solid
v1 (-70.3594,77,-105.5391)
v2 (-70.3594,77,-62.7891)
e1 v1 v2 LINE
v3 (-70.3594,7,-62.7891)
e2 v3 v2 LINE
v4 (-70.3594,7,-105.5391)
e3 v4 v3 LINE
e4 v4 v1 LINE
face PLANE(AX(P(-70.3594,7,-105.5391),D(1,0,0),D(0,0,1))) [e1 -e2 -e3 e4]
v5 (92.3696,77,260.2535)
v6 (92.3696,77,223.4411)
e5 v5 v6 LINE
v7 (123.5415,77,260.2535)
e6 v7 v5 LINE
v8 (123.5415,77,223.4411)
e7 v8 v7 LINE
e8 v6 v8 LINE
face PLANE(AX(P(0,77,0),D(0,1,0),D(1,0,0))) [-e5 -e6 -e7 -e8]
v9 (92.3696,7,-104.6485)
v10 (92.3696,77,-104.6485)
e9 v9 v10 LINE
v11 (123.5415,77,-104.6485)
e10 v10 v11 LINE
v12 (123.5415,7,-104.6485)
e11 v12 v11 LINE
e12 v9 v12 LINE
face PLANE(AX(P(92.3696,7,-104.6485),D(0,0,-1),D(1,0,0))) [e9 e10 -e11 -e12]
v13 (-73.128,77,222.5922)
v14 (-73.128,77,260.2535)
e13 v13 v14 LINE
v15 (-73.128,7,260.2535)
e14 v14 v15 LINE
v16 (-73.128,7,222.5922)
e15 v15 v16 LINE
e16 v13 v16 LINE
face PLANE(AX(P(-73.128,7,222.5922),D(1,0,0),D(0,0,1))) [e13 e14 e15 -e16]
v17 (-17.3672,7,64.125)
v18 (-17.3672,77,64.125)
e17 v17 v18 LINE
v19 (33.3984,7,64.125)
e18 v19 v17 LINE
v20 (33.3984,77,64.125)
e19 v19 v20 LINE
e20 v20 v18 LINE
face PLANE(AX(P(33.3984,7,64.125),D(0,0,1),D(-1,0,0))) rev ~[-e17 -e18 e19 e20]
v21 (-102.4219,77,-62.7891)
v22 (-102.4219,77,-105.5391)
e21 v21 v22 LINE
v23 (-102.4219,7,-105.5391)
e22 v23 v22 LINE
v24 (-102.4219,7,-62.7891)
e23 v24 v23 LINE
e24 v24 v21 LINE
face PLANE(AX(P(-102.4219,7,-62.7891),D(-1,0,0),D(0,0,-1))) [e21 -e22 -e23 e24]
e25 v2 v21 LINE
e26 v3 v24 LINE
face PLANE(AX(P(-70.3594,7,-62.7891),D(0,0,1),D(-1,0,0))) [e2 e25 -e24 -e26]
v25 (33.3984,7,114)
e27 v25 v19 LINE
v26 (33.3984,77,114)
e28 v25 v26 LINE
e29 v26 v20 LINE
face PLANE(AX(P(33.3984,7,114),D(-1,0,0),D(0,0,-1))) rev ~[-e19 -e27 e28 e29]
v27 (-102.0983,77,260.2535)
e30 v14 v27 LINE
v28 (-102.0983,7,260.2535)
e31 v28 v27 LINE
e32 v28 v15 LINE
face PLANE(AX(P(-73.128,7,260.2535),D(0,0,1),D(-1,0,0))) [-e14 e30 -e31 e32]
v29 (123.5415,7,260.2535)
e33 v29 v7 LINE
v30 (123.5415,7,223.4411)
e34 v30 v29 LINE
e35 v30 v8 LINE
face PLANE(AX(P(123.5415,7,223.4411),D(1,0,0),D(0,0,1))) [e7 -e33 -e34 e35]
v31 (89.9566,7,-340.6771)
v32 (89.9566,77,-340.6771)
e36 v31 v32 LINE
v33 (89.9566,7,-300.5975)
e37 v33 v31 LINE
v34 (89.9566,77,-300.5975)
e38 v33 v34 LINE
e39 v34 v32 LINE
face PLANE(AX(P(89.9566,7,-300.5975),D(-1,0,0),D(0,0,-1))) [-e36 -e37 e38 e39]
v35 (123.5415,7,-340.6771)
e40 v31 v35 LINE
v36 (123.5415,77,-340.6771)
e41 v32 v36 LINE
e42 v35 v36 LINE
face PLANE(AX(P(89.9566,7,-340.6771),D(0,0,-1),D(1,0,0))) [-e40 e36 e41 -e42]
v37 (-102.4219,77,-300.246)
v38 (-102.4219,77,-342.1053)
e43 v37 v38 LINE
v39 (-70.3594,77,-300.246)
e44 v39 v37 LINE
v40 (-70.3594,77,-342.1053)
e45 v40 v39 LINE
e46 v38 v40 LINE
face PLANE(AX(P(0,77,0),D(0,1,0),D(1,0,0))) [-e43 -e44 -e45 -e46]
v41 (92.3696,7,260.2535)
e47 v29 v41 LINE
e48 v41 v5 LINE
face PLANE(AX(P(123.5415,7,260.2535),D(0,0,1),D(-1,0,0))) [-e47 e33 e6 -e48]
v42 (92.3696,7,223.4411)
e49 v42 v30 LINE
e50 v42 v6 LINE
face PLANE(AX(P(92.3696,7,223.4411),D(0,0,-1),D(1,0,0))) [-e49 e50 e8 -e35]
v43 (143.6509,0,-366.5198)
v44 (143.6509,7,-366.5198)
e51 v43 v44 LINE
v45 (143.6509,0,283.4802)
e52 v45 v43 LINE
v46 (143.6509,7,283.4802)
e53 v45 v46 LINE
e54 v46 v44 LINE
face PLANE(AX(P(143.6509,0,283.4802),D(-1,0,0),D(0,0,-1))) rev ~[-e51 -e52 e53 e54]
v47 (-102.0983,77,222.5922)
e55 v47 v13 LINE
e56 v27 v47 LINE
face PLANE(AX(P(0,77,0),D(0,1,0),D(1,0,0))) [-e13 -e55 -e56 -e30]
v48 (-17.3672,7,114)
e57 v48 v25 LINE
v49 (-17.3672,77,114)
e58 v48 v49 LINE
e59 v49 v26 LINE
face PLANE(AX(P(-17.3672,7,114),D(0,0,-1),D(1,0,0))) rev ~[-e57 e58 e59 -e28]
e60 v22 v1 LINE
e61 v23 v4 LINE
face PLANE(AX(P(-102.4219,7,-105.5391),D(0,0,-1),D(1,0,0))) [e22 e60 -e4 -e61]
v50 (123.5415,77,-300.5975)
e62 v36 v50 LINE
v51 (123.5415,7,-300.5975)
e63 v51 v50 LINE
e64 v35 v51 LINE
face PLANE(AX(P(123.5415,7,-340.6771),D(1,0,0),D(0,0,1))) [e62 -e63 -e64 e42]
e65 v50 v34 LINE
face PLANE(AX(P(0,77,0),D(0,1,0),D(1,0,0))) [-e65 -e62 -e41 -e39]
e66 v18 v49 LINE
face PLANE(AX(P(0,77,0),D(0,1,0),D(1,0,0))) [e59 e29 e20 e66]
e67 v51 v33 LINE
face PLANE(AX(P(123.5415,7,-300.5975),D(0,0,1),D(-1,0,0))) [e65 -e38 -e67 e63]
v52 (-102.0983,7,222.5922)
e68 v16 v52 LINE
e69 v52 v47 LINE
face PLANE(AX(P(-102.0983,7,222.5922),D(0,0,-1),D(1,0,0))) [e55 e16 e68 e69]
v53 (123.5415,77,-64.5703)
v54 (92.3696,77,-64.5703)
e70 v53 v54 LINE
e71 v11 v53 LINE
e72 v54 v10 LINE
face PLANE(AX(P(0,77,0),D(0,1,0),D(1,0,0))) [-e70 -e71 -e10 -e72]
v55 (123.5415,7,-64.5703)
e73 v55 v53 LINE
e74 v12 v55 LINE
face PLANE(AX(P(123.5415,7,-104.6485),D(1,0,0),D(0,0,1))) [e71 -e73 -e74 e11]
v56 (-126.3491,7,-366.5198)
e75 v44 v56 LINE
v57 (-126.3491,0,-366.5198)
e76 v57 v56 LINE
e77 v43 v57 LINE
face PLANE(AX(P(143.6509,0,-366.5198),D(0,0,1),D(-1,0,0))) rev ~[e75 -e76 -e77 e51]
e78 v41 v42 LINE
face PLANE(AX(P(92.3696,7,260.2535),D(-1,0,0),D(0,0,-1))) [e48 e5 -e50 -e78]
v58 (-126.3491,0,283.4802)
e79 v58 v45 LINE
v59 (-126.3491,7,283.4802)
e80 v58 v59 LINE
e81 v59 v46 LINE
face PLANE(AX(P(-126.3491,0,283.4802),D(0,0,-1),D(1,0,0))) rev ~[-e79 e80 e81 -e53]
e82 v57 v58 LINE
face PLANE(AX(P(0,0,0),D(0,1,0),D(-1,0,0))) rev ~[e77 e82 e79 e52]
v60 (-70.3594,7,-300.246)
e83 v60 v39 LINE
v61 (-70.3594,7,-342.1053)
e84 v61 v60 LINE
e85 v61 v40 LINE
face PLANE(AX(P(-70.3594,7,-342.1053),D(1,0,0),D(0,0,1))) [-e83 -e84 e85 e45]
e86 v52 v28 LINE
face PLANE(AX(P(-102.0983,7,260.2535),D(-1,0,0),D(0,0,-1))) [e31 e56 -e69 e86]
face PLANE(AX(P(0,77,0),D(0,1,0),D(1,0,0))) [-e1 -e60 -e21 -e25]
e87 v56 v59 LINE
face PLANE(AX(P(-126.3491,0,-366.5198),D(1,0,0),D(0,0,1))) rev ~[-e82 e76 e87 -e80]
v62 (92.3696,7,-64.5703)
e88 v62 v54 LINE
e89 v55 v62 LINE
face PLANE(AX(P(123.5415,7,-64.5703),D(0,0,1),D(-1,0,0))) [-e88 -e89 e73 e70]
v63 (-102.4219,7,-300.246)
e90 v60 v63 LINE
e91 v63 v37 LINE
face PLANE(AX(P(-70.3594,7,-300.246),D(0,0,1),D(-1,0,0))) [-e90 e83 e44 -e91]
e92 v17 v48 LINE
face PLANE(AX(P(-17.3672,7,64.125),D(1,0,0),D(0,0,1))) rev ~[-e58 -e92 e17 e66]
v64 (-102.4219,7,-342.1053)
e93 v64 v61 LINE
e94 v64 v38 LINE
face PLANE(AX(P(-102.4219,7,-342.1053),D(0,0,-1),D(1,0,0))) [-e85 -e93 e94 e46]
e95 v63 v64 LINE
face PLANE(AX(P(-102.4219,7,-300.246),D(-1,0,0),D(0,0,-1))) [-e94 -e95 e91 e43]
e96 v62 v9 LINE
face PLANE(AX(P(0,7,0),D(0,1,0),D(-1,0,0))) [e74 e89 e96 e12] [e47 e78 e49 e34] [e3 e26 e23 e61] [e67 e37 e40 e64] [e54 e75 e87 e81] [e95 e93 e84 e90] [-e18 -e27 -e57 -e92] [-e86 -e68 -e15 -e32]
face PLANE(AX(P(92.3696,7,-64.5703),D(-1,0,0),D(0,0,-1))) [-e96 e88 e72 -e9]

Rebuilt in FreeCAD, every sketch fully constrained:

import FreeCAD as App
import Part
import Sketcher

doc = App.newDocument("Part")
body = doc.addObject("PartDesign::Body", "Body")

sketch1 = body.newObject("Sketcher::SketchObject", "Sketch")
sketch1.AttachmentSupport = (doc.getObject("XZ_Plane"), [""])
sketch1.MapMode = "FlatFace"
sketch1.addGeometry([
    Part.LineSegment(App.Vector(-126, -367, 0), App.Vector(-126, 283, 0)),
    Part.LineSegment(App.Vector(-126, 283, 0), App.Vector(144, 283, 0)),
    Part.LineSegment(App.Vector(144, 283, 0), App.Vector(144, -367, 0)),
    Part.LineSegment(App.Vector(144, -367, 0), App.Vector(-126, -367, 0)),
], False)
sketch1.addConstraint([
    Sketcher.Constraint("Coincident", 0, 2, 1, 1),
    Sketcher.Constraint("Coincident", 1, 2, 2, 1),
    Sketcher.Constraint("Coincident", 2, 2, 3, 1),
    Sketcher.Constraint("Coincident", 3, 2, 0, 1),
    Sketcher.Constraint("Vertical", 0),
    Sketcher.Constraint("Horizontal", 1),
    Sketcher.Constraint("Vertical", 2),
    Sketcher.Constraint("Horizontal", 3),
    Sketcher.Constraint("DistanceX", 1, 1, 1, 2, 270.0),
    Sketcher.Constraint("DistanceY", 0, 1, 0, 2, 650.0),
    Sketcher.Constraint("DistanceX", 0, 2, -1, 1, 126.349),
    Sketcher.Constraint("DistanceY", -1, 1, 0, 2, 283.4802),
])
pad1 = body.newObject("PartDesign::Pad", "Pad")
pad1.Profile = sketch1
pad1.Length = 7
pad1.Reversed = True

sketch2 = body.newObject("Sketcher::SketchObject", "Sketch001")
sketch2.AttachmentSupport = (doc.getObject("XZ_Plane"), [""])
sketch2.MapMode = "FlatFace"
sketch2.AttachmentOffset = App.Placement(App.Vector(0, 0, -7), App.Rotation())
sketch2.addGeometry([
    Part.LineSegment(App.Vector(-73, 223, 0), App.Vector(-102, 223, 0)),
    Part.LineSegment(App.Vector(-102, 223, 0), App.Vector(-102, 260, 0)),
    Part.LineSegment(App.Vector(-102, 260, 0), App.Vector(-73, 260, 0)),
    Part.LineSegment(App.Vector(-73, 260, 0), App.Vector(-73, 223, 0)),
], False)
sketch2.addConstraint([
    Sketcher.Constraint("Coincident", 0, 2, 1, 1),
    Sketcher.Constraint("Coincident", 1, 2, 2, 1),
    Sketcher.Constraint("Coincident", 2, 2, 3, 1),
    Sketcher.Constraint("Coincident", 3, 2, 0, 1),
    Sketcher.Constraint("Horizontal", 0),
    Sketcher.Constraint("Vertical", 1),
    Sketcher.Constraint("Horizontal", 2),
    Sketcher.Constraint("Vertical", 3),
    Sketcher.Constraint("DistanceX", 0, 2, 0, 1, 28.9703),
    Sketcher.Constraint("DistanceY", 1, 1, 1, 2, 37.6613),
    Sketcher.Constraint("DistanceX", 2, 2, -1, 1, 73.128),
    Sketcher.Constraint("DistanceY", -1, 1, 0, 2, 222.5922),
])
pad2 = body.newObject("PartDesign::Pad", "Pad001")
pad2.Profile = sketch2
pad2.Type = "TwoLengths"
pad2.Length = 70
pad2.Length2 = 5
pad2.Reversed = True

sketch3 = body.newObject("Sketcher::SketchObject", "Sketch002")
sketch3.AttachmentSupport = (doc.getObject("XZ_Plane"), [""])
sketch3.MapMode = "FlatFace"
sketch3.AttachmentOffset = App.Placement(App.Vector(0, 0, -7), App.Rotation())
sketch3.addGeometry([
    Part.LineSegment(App.Vector(92, 260, 0), App.Vector(124, 260, 0)),
    Part.LineSegment(App.Vector(124, 260, 0), App.Vector(124, 223, 0)),
    Part.LineSegment(App.Vector(124, 223, 0), App.Vector(92, 223, 0)),
    Part.LineSegment(App.Vector(92, 223, 0), App.Vector(92, 260, 0)),
], False)
sketch3.addConstraint([
    Sketcher.Constraint("Coincident", 0, 2, 1, 1),
    Sketcher.Constraint("Coincident", 1, 2, 2, 1),
    Sketcher.Constraint("Coincident", 2, 2, 3, 1),
    Sketcher.Constraint("Coincident", 3, 2, 0, 1),
    Sketcher.Constraint("Horizontal", 0),
    Sketcher.Constraint("Vertical", 1),
    Sketcher.Constraint("Horizontal", 2),
    Sketcher.Constraint("Vertical", 3),
    Sketcher.Constraint("DistanceX", 0, 1, 0, 2, 31.172),
    Sketcher.Constraint("DistanceY", 1, 2, 1, 1, 36.8124),
    Sketcher.Constraint("DistanceY", -1, 1, 1, 2, 223.441),
    Sketcher.Constraint("DistanceX", -1, 1, 0, 2, 123.5415),
])
pad3 = body.newObject("PartDesign::Pad", "Pad002")
pad3.Profile = sketch3
pad3.Length = 70
pad3.Reversed = True

sketch4 = body.newObject("Sketcher::SketchObject", "Sketch003")
sketch4.AttachmentSupport = (doc.getObject("XZ_Plane"), [""])
sketch4.MapMode = "FlatFace"
sketch4.AttachmentOffset = App.Placement(App.Vector(0, 0, -7), App.Rotation())
sketch4.addGeometry([
    Part.LineSegment(App.Vector(92, -65, 0), App.Vector(124, -65, 0)),
    Part.LineSegment(App.Vector(124, -65, 0), App.Vector(124, -105, 0)),
    Part.LineSegment(App.Vector(124, -105, 0), App.Vector(92, -105, 0)),
    Part.LineSegment(App.Vector(92, -105, 0), App.Vector(92, -65, 0)),
], False)
sketch4.addConstraint([
    Sketcher.Constraint("Coincident", 0, 2, 1, 1),
    Sketcher.Constraint("Coincident", 1, 2, 2, 1),
    Sketcher.Constraint("Coincident", 2, 2, 3, 1),
    Sketcher.Constraint("Coincident", 3, 2, 0, 1),
    Sketcher.Constraint("Horizontal", 0),
    Sketcher.Constraint("Vertical", 1),
    Sketcher.Constraint("Horizontal", 2),
    Sketcher.Constraint("Vertical", 3),
    Sketcher.Constraint("DistanceX", 0, 1, 0, 2, 31.172),
    Sketcher.Constraint("DistanceY", 1, 2, 1, 1, 40.0782),
    Sketcher.Constraint("DistanceX", -1, 1, 0, 2, 123.5415),
    Sketcher.Constraint("DistanceY", 0, 2, -1, 1, 64.5703),
])
pad4 = body.newObject("PartDesign::Pad", "Pad003")
pad4.Profile = sketch4
pad4.Length = 70
pad4.Reversed = True

sketch5 = body.newObject("Sketcher::SketchObject", "Sketch004")
sketch5.AttachmentSupport = (doc.getObject("XZ_Plane"), [""])
sketch5.MapMode = "FlatFace"
sketch5.AttachmentOffset = App.Placement(App.Vector(0, 0, -7), App.Rotation())
sketch5.addGeometry([
    Part.LineSegment(App.Vector(-102, -63, 0), App.Vector(-70, -63, 0)),
    Part.LineSegment(App.Vector(-70, -63, 0), App.Vector(-70, -106, 0)),
    Part.LineSegment(App.Vector(-70, -106, 0), App.Vector(-102, -106, 0)),
    Part.LineSegment(App.Vector(-102, -106, 0), App.Vector(-102, -63, 0)),
], False)
sketch5.addConstraint([
    Sketcher.Constraint("Coincident", 0, 2, 1, 1),
    Sketcher.Constraint("Coincident", 1, 2, 2, 1),
    Sketcher.Constraint("Coincident", 2, 2, 3, 1),
    Sketcher.Constraint("Coincident", 3, 2, 0, 1),
    Sketcher.Constraint("Horizontal", 0),
    Sketcher.Constraint("Vertical", 1),
    Sketcher.Constraint("Horizontal", 2),
    Sketcher.Constraint("Vertical", 3),
    Sketcher.Constraint("DistanceY", 1, 2, 1, 1, 42.75),
    Sketcher.Constraint("DistanceX", 0, 1, 0, 2, 32.0625),
    Sketcher.Constraint("DistanceY", 0, 2, -1, 1, 62.789),
    Sketcher.Constraint("DistanceX", 2, 2, -1, 1, 102.422),
])
pad5 = body.newObject("PartDesign::Pad", "Pad004")
pad5.Profile = sketch5
pad5.Length = 70
pad5.Reversed = True

sketch6 = body.newObject("Sketcher::SketchObject", "Sketch005")
sketch6.AttachmentSupport = (doc.getObject("XZ_Plane"), [""])
sketch6.MapMode = "FlatFace"
sketch6.AttachmentOffset = App.Placement(App.Vector(0, 0, -7), App.Rotation())
sketch6.addGeometry([
    Part.LineSegment(App.Vector(-70, -342, 0), App.Vector(-102, -342, 0)),
    Part.LineSegment(App.Vector(-102, -342, 0), App.Vector(-102, -300, 0)),
    Part.LineSegment(App.Vector(-102, -300, 0), App.Vector(-70, -300, 0)),
    Part.LineSegment(App.Vector(-70, -300, 0), App.Vector(-70, -342, 0)),
], False)
sketch6.addConstraint([
    Sketcher.Constraint("Coincident", 0, 2, 1, 1),
    Sketcher.Constraint("Coincident", 1, 2, 2, 1),
    Sketcher.Constraint("Coincident", 2, 2, 3, 1),
    Sketcher.Constraint("Coincident", 3, 2, 0, 1),
    Sketcher.Constraint("Horizontal", 0),
    Sketcher.Constraint("Vertical", 1),
    Sketcher.Constraint("Horizontal", 2),
    Sketcher.Constraint("Vertical", 3),
    Sketcher.Constraint("DistanceX", 0, 2, 0, 1, 32.0625),
    Sketcher.Constraint("DistanceY", 1, 1, 1, 2, 41.8593),
    Sketcher.Constraint("DistanceX", 0, 2, -1, 1, 102.422),
    Sketcher.Constraint("DistanceY", 1, 2, -1, 1, 300.246),
])
pad6 = body.newObject("PartDesign::Pad", "Pad005")
pad6.Profile = sketch6
pad6.Length = 70
pad6.Reversed = True

sketch7 = body.newObject("Sketcher::SketchObject", "Sketch006")
sketch7.AttachmentSupport = (doc.getObject("XZ_Plane"), [""])
sketch7.MapMode = "FlatFace"
sketch7.AttachmentOffset = App.Placement(App.Vector(0, 0, -7), App.Rotation())
sketch7.addGeometry([
    Part.LineSegment(App.Vector(90, -301, 0), App.Vector(124, -301, 0)),
    Part.LineSegment(App.Vector(124, -301, 0), App.Vector(124, -341, 0)),
    Part.LineSegment(App.Vector(124, -341, 0), App.Vector(90, -341, 0)),
    Part.LineSegment(App.Vector(90, -341, 0), App.Vector(90, -301, 0)),
], False)
sketch7.addConstraint([
    Sketcher.Constraint("Coincident", 0, 2, 1, 1),
    Sketcher.Constraint("Coincident", 1, 2, 2, 1),
    Sketcher.Constraint("Coincident", 2, 2, 3, 1),
    Sketcher.Constraint("Coincident", 3, 2, 0, 1),
    Sketcher.Constraint("Horizontal", 0),
    Sketcher.Constraint("Vertical", 1),
    Sketcher.Constraint("Horizontal", 2),
    Sketcher.Constraint("Vertical", 3),
    Sketcher.Constraint("DistanceX", 0, 1, 0, 2, 33.585),
    Sketcher.Constraint("DistanceY", 1, 2, 1, 1, 40.0796),
    Sketcher.Constraint("DistanceY", 1, 2, -1, 1, 340.677),
    Sketcher.Constraint("DistanceX", -1, 1, 0, 2, 123.5415),
])
pad7 = body.newObject("PartDesign::Pad", "Pad006")
pad7.Profile = sketch7
pad7.Length = 70
pad7.Reversed = True

sketch8 = body.newObject("Sketcher::SketchObject", "Sketch007")
sketch8.AttachmentSupport = (doc.getObject("XZ_Plane"), [""])
sketch8.MapMode = "FlatFace"
sketch8.AttachmentOffset = App.Placement(App.Vector(0, 0, -7), App.Rotation())
sketch8.addGeometry([
    Part.LineSegment(App.Vector(33, 114, 0), App.Vector(33, 64, 0)),
    Part.LineSegment(App.Vector(33, 64, 0), App.Vector(-17, 64, 0)),
    Part.LineSegment(App.Vector(-17, 64, 0), App.Vector(-17, 114, 0)),
    Part.LineSegment(App.Vector(-17, 114, 0), App.Vector(33, 114, 0)),
], False)
sketch8.addConstraint([
    Sketcher.Constraint("Coincident", 0, 2, 1, 1),
    Sketcher.Constraint("Coincident", 1, 2, 2, 1),
    Sketcher.Constraint("Coincident", 2, 2, 3, 1),
    Sketcher.Constraint("Coincident", 3, 2, 0, 1),
    Sketcher.Constraint("Vertical", 0),
    Sketcher.Constraint("Horizontal", 1),
    Sketcher.Constraint("Vertical", 2),
    Sketcher.Constraint("Horizontal", 3),
    Sketcher.Constraint("DistanceY", -1, 1, 2, 2, 114.0),
    Sketcher.Constraint("DistanceY", 0, 2, 0, 1, 49.875),
    Sketcher.Constraint("DistanceX", 1, 2, 1, 1, 50.7656),
    Sketcher.Constraint("DistanceX", -1, 1, 0, 2, 33.3984),
])
pad8 = body.newObject("PartDesign::Pad", "Pad007")
pad8.Profile = sketch8
pad8.Length = 70
pad8.Reversed = True

doc.recompute()
